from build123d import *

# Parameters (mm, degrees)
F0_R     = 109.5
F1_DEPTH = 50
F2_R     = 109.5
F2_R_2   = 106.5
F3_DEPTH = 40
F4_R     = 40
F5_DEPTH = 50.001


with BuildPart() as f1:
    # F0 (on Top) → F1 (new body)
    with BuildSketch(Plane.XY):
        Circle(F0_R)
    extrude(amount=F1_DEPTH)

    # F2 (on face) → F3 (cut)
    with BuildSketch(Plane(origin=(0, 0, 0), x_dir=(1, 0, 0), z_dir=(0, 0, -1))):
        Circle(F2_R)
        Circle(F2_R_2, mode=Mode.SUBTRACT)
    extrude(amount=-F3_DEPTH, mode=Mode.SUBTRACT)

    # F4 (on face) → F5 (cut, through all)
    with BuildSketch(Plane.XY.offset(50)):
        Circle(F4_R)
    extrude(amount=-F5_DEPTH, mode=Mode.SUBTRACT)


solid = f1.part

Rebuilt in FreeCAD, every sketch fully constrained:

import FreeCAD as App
import Part
import Sketcher

V = App.Vector

doc = App.newDocument("Part")
body = doc.addObject("PartDesign::Body", "Body")

# Sketch on XY plane
sketch1 = body.newObject("Sketcher::SketchObject", "Sketch")
sketch1.AttachmentSupport = (doc.getObject("XY_Plane"), [""])
sketch1.MapMode = "FlatFace"
sketch1.addGeometry(Part.Circle(V(0, 0, 0), V(0, 0, 1), 110), False)
sketch1.addConstraint(Sketcher.Constraint("Coincident", 0, 3, -1, 1))
sketch1.addConstraint(Sketcher.Constraint("Diameter", 0, 219.0))
pad1 = body.newObject("PartDesign::Pad", "Pad")
pad1.Profile = sketch1
pad1.Length = 50

# Sketch on XY plane
sketch2 = body.newObject("Sketcher::SketchObject", "Sketch001")
sketch2.AttachmentSupport = (doc.getObject("XY_Plane"), [""])
sketch2.MapMode = "FlatFace"
sketch2.addGeometry(Part.Circle(V(0, 0, 0), V(0, 0, 1), 110), False)
sketch2.addGeometry(Part.Circle(V(0, 0, 0), V(0, 0, 1), 106), False)
sketch2.addConstraint(Sketcher.Constraint("Coincident", 0, 3, -1, 1))
sketch2.addConstraint(Sketcher.Constraint("Coincident", 1, 3, -1, 1))
sketch2.addConstraint(Sketcher.Constraint("Diameter", 0, 219.0))
sketch2.addConstraint(Sketcher.Constraint("Diameter", 1, 213.0))
pocket1 = body.newObject("PartDesign::Pocket", "Pocket")
pocket1.Profile = sketch2
pocket1.Length = 40
pocket1.Reversed = True

# Sketch on XY plane
sketch3 = body.newObject("Sketcher::SketchObject", "Sketch002")
sketch3.AttachmentSupport = (doc.getObject("XY_Plane"), [""])
sketch3.MapMode = "FlatFace"
sketch3.AttachmentOffset = App.Placement(V(0, 0, 50), App.Rotation())
sketch3.addGeometry(Part.Circle(V(0, 0, 0), V(0, 0, 1), 40), False)
sketch3.addConstraint(Sketcher.Constraint("Coincident", 0, 3, -1, 1))
sketch3.addConstraint(Sketcher.Constraint("Diameter", 0, 80.0))
pocket2 = body.newObject("PartDesign::Pocket", "Pocket001")
pocket2.Profile = sketch3
pocket2.Type = "ThroughAll"

doc.recompute()
